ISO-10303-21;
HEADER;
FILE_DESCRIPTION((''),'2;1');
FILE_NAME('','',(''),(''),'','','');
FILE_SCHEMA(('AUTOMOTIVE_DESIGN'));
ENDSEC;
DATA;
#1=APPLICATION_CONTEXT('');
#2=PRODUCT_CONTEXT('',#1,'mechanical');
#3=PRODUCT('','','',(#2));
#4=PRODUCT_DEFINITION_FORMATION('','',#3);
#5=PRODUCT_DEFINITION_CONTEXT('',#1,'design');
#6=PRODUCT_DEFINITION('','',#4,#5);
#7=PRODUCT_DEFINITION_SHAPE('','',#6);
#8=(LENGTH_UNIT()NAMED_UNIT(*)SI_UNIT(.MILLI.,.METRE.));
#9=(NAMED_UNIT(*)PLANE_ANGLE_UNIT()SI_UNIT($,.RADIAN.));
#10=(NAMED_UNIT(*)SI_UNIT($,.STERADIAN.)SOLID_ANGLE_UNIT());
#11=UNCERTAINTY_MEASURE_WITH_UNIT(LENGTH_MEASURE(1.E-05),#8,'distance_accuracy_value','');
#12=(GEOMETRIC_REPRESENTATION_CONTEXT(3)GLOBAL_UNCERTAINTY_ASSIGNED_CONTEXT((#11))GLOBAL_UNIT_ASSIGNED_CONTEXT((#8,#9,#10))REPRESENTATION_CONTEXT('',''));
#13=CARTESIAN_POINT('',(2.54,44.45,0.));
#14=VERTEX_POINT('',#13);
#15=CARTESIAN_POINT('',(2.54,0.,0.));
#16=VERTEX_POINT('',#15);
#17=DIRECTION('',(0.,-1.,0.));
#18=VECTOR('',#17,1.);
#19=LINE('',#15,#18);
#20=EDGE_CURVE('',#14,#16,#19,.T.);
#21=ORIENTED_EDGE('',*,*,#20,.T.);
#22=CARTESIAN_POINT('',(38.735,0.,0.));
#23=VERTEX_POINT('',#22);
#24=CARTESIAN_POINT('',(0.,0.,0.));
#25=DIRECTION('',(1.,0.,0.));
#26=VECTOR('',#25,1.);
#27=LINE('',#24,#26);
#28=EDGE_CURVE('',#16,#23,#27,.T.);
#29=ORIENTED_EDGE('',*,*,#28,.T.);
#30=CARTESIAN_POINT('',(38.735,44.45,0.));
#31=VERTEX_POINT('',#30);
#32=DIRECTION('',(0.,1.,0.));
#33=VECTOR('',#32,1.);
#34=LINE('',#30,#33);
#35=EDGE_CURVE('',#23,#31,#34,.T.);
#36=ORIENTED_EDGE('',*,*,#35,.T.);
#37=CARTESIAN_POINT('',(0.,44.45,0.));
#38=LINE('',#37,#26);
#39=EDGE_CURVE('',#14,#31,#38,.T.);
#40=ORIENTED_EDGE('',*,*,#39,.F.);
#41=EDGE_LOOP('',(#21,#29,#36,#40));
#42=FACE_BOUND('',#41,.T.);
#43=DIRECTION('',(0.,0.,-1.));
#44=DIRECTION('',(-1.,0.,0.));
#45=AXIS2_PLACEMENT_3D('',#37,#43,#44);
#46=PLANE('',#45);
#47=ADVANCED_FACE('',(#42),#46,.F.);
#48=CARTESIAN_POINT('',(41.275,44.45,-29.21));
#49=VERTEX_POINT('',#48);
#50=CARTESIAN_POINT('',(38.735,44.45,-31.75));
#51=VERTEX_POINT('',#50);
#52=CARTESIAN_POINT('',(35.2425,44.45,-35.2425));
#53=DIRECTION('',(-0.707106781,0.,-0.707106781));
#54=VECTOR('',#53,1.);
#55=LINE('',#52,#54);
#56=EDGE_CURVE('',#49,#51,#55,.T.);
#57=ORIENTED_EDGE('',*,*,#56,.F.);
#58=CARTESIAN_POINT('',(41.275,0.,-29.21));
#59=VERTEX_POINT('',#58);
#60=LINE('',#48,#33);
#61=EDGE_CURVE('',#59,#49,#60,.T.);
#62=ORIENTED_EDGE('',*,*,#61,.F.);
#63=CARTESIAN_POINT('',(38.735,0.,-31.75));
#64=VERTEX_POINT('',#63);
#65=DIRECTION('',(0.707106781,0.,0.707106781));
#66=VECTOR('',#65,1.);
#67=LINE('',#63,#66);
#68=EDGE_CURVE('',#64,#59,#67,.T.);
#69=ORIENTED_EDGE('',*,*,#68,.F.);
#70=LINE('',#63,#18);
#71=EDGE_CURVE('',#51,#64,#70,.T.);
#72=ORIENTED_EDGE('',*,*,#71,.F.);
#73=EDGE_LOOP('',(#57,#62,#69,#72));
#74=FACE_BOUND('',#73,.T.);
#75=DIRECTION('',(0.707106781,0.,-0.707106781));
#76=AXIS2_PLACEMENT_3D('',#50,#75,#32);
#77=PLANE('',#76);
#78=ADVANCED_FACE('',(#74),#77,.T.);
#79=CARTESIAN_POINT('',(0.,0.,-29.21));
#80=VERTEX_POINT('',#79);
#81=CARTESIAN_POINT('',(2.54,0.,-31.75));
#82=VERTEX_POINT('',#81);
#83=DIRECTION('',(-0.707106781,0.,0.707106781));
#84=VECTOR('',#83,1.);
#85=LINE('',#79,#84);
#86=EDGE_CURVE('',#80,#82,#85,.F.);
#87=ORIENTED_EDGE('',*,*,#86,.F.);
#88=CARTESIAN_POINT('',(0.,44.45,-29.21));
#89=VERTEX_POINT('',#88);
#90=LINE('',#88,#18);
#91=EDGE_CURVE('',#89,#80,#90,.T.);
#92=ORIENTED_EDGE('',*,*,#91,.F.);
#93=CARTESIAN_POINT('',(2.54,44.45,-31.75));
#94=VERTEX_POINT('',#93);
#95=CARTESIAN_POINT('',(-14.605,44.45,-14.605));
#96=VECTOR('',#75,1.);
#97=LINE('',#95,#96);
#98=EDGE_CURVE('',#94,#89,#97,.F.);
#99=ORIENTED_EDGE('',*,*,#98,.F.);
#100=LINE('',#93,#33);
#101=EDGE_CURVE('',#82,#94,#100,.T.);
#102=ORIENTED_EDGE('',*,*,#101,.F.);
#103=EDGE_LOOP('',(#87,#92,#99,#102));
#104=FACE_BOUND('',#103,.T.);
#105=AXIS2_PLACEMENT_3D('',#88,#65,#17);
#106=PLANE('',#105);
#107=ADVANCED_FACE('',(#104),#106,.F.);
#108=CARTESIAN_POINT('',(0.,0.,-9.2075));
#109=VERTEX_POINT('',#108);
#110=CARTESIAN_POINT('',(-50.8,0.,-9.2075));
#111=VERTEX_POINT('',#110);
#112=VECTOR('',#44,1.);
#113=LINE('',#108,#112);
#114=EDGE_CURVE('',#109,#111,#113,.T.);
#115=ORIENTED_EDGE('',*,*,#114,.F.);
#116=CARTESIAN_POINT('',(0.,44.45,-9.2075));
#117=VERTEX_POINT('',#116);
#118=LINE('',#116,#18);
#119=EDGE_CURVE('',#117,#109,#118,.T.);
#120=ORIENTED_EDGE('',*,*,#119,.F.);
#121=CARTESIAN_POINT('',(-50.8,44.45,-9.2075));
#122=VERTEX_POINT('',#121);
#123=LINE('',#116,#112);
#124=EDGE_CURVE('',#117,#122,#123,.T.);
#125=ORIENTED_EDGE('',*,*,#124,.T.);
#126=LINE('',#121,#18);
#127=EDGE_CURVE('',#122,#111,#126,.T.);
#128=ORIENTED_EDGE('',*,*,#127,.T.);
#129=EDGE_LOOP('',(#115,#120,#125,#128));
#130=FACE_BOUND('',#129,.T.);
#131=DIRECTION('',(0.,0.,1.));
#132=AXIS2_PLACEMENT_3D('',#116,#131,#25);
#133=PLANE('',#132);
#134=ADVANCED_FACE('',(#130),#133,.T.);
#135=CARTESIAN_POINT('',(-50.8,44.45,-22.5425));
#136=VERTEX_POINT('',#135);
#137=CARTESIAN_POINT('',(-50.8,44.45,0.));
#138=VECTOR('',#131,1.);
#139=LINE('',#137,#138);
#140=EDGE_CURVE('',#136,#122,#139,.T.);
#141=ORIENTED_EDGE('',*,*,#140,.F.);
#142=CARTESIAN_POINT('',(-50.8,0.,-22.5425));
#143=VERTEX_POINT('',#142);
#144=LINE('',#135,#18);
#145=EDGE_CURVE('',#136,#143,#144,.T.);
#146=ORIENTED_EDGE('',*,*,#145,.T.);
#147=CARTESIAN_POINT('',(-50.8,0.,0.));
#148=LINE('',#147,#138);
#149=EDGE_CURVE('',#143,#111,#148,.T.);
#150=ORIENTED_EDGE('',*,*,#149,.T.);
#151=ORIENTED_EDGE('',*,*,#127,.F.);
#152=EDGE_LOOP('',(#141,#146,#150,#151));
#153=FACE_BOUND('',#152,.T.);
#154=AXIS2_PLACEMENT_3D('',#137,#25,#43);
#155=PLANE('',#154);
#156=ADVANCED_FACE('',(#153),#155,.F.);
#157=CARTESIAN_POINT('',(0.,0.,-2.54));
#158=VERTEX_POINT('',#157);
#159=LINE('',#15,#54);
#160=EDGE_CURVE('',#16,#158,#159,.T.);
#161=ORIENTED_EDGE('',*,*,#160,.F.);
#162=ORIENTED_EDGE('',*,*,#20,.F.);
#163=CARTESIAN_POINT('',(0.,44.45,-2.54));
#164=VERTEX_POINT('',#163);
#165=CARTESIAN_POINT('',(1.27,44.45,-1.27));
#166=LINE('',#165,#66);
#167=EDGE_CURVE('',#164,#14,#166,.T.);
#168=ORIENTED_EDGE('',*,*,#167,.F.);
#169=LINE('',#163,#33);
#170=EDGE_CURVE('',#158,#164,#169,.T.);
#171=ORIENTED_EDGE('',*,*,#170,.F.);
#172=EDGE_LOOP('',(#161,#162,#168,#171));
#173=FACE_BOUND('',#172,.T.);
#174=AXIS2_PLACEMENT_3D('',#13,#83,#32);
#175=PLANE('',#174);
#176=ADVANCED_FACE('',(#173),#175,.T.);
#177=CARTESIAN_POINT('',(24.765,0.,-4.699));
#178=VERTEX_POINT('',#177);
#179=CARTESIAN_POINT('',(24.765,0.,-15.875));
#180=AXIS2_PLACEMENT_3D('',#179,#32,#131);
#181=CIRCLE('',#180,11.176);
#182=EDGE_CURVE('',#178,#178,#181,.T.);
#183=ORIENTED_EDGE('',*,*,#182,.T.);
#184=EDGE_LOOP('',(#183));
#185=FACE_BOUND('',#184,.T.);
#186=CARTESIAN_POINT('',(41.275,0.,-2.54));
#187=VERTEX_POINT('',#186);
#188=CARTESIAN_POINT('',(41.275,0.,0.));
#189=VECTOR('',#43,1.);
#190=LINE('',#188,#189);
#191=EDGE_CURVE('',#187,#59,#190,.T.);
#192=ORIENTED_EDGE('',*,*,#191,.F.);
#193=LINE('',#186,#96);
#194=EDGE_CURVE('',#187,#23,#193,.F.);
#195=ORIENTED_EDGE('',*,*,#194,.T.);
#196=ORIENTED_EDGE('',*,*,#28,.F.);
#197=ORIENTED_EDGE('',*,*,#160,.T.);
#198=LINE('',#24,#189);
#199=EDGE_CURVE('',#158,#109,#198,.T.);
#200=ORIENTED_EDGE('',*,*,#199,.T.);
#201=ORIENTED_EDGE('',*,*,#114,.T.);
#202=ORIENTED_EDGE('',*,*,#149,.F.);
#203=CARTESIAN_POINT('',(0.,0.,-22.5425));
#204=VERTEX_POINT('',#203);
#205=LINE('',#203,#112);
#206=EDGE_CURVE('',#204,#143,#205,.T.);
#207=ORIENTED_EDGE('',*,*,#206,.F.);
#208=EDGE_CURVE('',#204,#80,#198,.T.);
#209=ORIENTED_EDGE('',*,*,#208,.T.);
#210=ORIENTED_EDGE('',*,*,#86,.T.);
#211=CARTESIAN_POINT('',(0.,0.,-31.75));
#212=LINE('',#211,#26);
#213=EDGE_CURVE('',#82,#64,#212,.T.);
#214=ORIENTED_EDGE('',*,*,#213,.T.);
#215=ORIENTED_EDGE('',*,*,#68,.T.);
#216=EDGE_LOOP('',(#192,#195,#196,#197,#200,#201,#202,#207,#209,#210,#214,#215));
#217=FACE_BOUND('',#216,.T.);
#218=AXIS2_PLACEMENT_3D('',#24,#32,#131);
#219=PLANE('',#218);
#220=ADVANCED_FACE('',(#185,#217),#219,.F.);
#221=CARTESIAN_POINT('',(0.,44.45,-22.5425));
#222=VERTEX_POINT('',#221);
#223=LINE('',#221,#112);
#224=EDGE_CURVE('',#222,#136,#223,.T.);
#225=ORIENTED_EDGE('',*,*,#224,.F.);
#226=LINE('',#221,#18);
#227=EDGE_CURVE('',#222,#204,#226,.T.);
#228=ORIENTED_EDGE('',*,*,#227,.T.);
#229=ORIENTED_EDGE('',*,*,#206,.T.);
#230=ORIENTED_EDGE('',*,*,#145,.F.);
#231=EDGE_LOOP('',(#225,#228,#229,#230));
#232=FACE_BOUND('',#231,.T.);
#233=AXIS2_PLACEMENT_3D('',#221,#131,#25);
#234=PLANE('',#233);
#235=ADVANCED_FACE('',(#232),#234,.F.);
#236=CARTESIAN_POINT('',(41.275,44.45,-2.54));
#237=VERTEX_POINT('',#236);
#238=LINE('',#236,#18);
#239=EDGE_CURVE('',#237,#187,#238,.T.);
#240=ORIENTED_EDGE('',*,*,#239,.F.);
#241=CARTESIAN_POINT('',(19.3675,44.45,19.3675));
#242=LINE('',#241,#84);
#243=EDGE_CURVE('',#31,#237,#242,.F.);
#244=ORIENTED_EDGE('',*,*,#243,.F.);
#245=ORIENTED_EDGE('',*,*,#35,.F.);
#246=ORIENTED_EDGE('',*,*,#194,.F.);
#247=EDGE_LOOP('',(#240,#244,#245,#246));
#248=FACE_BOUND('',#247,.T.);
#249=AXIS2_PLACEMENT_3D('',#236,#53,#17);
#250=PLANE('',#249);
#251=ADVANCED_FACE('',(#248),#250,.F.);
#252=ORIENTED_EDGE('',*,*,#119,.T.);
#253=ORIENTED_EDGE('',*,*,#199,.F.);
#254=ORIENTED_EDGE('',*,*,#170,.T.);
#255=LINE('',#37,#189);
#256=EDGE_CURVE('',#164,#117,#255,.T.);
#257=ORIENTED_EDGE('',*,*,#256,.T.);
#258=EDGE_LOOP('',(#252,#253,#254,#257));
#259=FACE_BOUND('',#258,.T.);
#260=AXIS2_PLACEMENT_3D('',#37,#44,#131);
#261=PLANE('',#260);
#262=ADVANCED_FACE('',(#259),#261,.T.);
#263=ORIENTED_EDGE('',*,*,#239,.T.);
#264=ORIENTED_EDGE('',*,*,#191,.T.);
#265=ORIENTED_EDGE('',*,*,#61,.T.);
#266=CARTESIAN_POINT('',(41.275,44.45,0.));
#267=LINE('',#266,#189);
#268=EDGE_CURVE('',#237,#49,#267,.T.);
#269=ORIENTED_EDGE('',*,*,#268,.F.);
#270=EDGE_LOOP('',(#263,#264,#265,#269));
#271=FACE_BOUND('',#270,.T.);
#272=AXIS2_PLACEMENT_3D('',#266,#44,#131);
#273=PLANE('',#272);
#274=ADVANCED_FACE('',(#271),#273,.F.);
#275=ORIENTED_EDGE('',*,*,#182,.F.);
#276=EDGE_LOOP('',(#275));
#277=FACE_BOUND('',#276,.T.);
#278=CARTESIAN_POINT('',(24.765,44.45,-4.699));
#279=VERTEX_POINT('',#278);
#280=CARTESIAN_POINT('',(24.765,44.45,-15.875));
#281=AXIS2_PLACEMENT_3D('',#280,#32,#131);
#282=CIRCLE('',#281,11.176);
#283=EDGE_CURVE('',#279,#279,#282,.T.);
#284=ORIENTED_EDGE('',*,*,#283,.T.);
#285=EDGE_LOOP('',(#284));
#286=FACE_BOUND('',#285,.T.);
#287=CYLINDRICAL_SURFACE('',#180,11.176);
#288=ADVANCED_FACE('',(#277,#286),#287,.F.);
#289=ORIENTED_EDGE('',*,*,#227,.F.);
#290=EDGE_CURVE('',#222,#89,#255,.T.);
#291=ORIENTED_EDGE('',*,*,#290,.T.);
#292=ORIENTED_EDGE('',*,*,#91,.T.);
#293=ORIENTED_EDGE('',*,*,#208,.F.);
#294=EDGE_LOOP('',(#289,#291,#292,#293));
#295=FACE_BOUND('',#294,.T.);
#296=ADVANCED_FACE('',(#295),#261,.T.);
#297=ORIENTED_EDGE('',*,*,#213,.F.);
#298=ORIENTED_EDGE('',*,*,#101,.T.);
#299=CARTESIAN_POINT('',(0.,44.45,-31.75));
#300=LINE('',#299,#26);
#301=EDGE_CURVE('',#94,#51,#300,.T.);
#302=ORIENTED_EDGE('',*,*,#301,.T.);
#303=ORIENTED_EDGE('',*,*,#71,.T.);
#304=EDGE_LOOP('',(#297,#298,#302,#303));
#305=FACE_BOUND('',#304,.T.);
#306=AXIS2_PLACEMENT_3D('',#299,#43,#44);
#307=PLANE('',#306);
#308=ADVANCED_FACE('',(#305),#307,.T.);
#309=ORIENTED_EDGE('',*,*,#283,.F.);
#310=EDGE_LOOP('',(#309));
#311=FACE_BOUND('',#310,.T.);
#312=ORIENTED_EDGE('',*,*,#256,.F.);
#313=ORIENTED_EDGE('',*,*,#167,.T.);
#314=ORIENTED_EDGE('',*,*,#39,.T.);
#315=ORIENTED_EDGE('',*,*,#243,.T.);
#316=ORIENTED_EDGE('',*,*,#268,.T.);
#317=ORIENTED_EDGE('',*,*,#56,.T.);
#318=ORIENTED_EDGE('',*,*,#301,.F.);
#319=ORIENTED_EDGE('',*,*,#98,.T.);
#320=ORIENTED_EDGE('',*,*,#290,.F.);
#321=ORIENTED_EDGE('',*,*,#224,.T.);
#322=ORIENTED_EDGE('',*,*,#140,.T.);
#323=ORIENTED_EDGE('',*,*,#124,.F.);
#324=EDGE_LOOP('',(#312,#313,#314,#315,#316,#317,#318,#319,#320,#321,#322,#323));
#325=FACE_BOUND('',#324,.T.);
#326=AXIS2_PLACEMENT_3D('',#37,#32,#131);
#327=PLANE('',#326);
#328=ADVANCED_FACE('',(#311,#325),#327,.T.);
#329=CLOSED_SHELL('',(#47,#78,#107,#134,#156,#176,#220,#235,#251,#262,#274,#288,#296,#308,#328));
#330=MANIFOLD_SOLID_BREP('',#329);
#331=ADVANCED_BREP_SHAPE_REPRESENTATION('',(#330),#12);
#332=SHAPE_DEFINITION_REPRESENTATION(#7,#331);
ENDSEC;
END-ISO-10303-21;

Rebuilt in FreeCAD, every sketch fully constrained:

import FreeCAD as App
import Part
import Sketcher
from FreeCAD import Vector
Q = App.Units.Quantity


def edges_at(feature, points):
    """Names of the edges that pass closest to the given points."""
    edges = feature.Shape.Edges
    near = lambda p: min(range(len(edges)), key=lambda i: edges[i].distToShape(Part.Vertex(*p))[0])
    return sorted({f"Edge{near(p) + 1}" for p in points})

doc = App.newDocument("Part")
body = doc.addObject("PartDesign::Body", "Body")

# Sketch on XZ plane
sketch1 = body.newObject("Sketcher::SketchObject", "Sketch")
sketch1.AttachmentSupport = (doc.getObject("XZ_Plane"), [""])
sketch1.MapMode = "FlatFace"
sketch1.addGeometry([
    Part.LineSegment(Vector(0, 0, 0), Vector(41.275, 0, 0)),  # 0
    Part.LineSegment(Vector(41.275, 0, 0), Vector(41.275, -31.75, 0)),  # 1
    Part.LineSegment(Vector(41.275, -31.75, 0), Vector(0, -31.75, 0)),  # 2
    Part.LineSegment(Vector(0, -31.75, 0), Vector(0, -22.5425, 0)),  # 3
    Part.LineSegment(Vector(0, -22.5425, 0), Vector(-50.8, -22.5425, 0)),  # 4
    Part.LineSegment(Vector(-50.8, -22.5425, 0), Vector(-50.8, -9.2075, 0)),  # 5
    Part.LineSegment(Vector(-50.8, -9.2075, 0), Vector(0, -9.2075, 0)),  # 6
    Part.LineSegment(Vector(0, -9.2075, 0), Vector(0, 0, 0)),  # 7
], False)
sketch1.addConstraint([
    Sketcher.Constraint("Coincident", 0, 2, 1, 1),
    Sketcher.Constraint("Coincident", 1, 2, 2, 1),
    Sketcher.Constraint("Coincident", 2, 2, 3, 1),
    Sketcher.Constraint("Coincident", 3, 2, 4, 1),
    Sketcher.Constraint("Coincident", 4, 2, 5, 1),
    Sketcher.Constraint("Coincident", 5, 2, 6, 1),
    Sketcher.Constraint("Coincident", 6, 2, 7, 1),
    Sketcher.Constraint("Coincident", 7, 2, 0, 1),
    Sketcher.Constraint("Horizontal", 0),
    Sketcher.Constraint("Vertical", 1),
    Sketcher.Constraint("Horizontal", 2),
    Sketcher.Constraint("Vertical", 3),
    Sketcher.Constraint("Horizontal", 4),
    Sketcher.Constraint("Vertical", 5),
    Sketcher.Constraint("Horizontal", 6),
    Sketcher.Constraint("Vertical", 7),
    Sketcher.Constraint("Coincident", 7, 2, -1, 1),
    Sketcher.Constraint("PointOnObject", 2, 2, -2),
    Sketcher.Constraint("Equal", 3, 7),
    Sketcher.Constraint("DistanceX", 4, 2, 4, 1, Q("2 in")),
    Sketcher.Constraint("DistanceY", 1, 2, 1, 1, Q("1.25 in")),
    Sketcher.Constraint("DistanceX", 0, 1, 0, 2, Q("1.625 in")),
    Sketcher.Constraint("DistanceY", 5, 1, 5, 2, Q("0.525 in")),
])
pad1 = body.newObject("PartDesign::Pad", "Pad")
pad1.Profile = sketch1
pad1.Length = Q("1.75 in")
pad1.Reversed = True
doc.recompute()

chamfer = body.newObject("PartDesign::Chamfer", "Chamfer")
chamfer.Base = (pad1, edges_at(pad1, [(0, 22.225, 0), (41.275, 22.225, -31.75), (41.275, 22.225, 0)]))
chamfer.Size = Q("0.1 in")
doc.recompute()

chamfer2 = body.newObject("PartDesign::Chamfer", "Chamfer001")
chamfer2.Base = (chamfer, edges_at(chamfer, [(0, 22.225, -31.75)]))
chamfer2.Size = Q("0.1 in")

# Sketch on XZ plane
sketch2 = body.newObject("Sketcher::SketchObject", "Sketch001")
sketch2.AttachmentSupport = (doc.getObject("XZ_Plane"), [""])
sketch2.MapMode = "FlatFace"
sketch2.AttachmentOffset = App.Placement(Vector(0, 0, -1.75 * 25.4), App.Rotation())
sketch2.addGeometry(Part.Circle(Vector(24.765, -15.875, 0), Vector(0, 0, 1), 11.176), False)
sketch2.addConstraint([
    Sketcher.Constraint("Diameter", 0, Q("0.88 in")),
    Sketcher.Constraint("DistanceX", -1, 1, 0, 3, Q("0.975 in")),
    Sketcher.Constraint("DistanceY", 0, 3, -1, 1, Q("0.625 in")),
])
pocket1 = body.newObject("PartDesign::Pocket", "Pocket")
pocket1.Profile = sketch2
pocket1.Length = Q("1.75 in")
pocket1.Reversed = True

doc.recompute()
